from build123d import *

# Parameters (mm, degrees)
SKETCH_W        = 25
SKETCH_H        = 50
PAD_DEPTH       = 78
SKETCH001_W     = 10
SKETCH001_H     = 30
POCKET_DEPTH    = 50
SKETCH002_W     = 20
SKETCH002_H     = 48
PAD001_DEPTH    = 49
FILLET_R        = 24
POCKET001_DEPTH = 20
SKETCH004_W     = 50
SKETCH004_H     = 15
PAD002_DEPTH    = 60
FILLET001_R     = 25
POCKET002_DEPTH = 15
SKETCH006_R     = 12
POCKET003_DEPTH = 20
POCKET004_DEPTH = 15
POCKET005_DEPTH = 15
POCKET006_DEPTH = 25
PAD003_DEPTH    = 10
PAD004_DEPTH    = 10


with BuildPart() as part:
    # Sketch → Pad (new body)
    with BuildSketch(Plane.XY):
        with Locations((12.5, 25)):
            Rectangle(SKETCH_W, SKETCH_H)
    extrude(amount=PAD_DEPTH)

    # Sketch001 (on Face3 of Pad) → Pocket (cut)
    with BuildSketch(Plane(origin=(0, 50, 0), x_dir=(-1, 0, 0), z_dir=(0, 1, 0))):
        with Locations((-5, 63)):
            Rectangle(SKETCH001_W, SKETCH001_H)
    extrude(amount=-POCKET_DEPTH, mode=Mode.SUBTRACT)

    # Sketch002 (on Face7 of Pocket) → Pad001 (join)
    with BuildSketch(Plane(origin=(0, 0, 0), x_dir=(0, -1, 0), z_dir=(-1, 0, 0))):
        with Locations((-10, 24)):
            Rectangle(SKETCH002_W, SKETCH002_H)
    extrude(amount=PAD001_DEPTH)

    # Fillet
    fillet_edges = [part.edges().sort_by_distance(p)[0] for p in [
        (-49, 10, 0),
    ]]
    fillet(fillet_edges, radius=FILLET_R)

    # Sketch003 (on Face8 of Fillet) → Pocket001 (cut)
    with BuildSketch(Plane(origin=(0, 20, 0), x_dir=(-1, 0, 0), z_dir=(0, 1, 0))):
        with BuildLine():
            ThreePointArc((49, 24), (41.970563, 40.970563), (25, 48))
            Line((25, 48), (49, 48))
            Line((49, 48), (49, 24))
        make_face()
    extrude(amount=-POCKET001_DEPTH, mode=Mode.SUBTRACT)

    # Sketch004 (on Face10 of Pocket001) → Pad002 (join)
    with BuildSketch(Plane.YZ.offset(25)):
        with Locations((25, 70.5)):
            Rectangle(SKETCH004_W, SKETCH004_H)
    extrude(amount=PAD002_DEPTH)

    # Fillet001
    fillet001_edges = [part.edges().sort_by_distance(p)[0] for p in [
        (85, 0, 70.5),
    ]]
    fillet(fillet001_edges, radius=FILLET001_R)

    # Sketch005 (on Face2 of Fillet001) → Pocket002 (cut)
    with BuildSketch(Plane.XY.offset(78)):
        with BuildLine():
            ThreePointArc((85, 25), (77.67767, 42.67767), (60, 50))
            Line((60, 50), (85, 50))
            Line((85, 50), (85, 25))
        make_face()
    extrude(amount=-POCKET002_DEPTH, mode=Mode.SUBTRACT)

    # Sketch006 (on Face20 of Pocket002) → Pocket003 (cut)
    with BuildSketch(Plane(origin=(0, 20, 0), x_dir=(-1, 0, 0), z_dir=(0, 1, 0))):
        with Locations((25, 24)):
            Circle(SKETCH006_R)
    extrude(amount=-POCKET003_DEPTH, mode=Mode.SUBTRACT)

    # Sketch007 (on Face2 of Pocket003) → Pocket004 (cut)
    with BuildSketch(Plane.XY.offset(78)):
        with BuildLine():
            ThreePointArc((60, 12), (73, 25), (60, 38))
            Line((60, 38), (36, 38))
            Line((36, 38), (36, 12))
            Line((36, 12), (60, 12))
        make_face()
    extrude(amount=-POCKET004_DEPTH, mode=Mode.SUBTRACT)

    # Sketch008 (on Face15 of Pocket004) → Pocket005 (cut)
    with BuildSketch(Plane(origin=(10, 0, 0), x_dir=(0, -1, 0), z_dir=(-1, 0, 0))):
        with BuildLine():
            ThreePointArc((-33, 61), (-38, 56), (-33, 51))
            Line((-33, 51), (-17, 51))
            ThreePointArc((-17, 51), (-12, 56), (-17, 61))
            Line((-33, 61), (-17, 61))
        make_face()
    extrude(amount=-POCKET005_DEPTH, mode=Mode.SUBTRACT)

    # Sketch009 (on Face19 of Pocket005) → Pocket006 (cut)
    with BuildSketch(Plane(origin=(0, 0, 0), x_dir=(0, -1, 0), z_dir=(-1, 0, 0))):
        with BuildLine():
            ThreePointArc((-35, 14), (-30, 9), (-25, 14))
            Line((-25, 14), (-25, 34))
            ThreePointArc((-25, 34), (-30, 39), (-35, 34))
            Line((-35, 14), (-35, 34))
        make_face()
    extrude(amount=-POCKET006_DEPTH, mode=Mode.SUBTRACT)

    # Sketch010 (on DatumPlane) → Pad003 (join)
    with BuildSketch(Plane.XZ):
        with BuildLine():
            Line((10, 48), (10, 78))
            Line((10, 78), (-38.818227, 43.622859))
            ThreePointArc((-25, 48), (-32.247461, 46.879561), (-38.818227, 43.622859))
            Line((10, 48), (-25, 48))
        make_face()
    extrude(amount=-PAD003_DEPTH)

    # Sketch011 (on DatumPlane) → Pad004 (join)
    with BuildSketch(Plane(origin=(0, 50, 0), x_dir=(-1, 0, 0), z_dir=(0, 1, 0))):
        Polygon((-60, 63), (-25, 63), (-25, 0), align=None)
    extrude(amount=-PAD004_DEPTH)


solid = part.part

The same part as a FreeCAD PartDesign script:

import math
import FreeCAD as App
import Part
import Sketcher
from FreeCAD import Vector


def edges_at(feature, points):
    """Names of the edges that pass closest to the given points."""
    edges = feature.Shape.Edges
    near = lambda p: min(range(len(edges)), key=lambda i: edges[i].distToShape(Part.Vertex(*p))[0])
    return sorted({f"Edge{near(p) + 1}" for p in points})

doc = App.newDocument("Part")
body = doc.addObject("PartDesign::Body", "Body")

sketch1 = body.newObject("Sketcher::SketchObject", "Sketch")
sketch1.AttachmentSupport = (doc.getObject("XY_Plane"), [""])
sketch1.MapMode = "FlatFace"
sketch1.addGeometry([
    Part.LineSegment(Vector(0, 50, 0), Vector(0, 0, 0)),
    Part.LineSegment(Vector(0, 0, 0), Vector(25, 0, 0)),
    Part.LineSegment(Vector(25, 0, 0), Vector(25, 50, 0)),
    Part.LineSegment(Vector(25, 50, 0), Vector(0, 50, 0)),
], False)
sketch1.addConstraint([
    Sketcher.Constraint("Coincident", 0, 2, 1, 1),
    Sketcher.Constraint("Coincident", 1, 2, 2, 1),
    Sketcher.Constraint("Coincident", 2, 2, 3, 1),
    Sketcher.Constraint("Coincident", 3, 2, 0, 1),
    Sketcher.Constraint("Vertical", 0),
    Sketcher.Constraint("Horizontal", 1),
    Sketcher.Constraint("Vertical", 2),
    Sketcher.Constraint("Horizontal", 3),
    Sketcher.Constraint("Coincident", 0, 2, -1, 1),
    Sketcher.Constraint("DistanceX", 1, 1, 1, 2, 25.0),
    Sketcher.Constraint("DistanceY", 0, 2, 0, 1, 50.0),
])
pad1 = body.newObject("PartDesign::Pad", "Pad")
pad1.Profile = sketch1
pad1.Length = 78

sketch2 = body.newObject("Sketcher::SketchObject", "Sketch001")
sketch2.AttachmentSupport = (doc.getObject("XZ_Plane"), [""])
sketch2.MapMode = "FlatFace"
sketch2.AttachmentOffset = App.Placement(Vector(0, 0, -50), App.Rotation())
sketch2.addGeometry([
    Part.LineSegment(Vector(10, 78, 0), Vector(10, 48, 0)),
    Part.LineSegment(Vector(10, 48, 0), Vector(0, 48, 0)),
    Part.LineSegment(Vector(0, 48, 0), Vector(0, 78, 0)),
    Part.LineSegment(Vector(0, 78, 0), Vector(10, 78, 0)),
], False)
sketch2.addConstraint([
    Sketcher.Constraint("Coincident", 0, 2, 1, 1),
    Sketcher.Constraint("Coincident", 1, 2, 2, 1),
    Sketcher.Constraint("Coincident", 2, 2, 3, 1),
    Sketcher.Constraint("Coincident", 3, 2, 0, 1),
    Sketcher.Constraint("Vertical", 0),
    Sketcher.Constraint("Horizontal", 1),
    Sketcher.Constraint("Vertical", 2),
    Sketcher.Constraint("Horizontal", 3),
    Sketcher.Constraint("PointOnObject", 1, 2, -2),
    Sketcher.Constraint("DistanceX", 1, 2, 1, 1, 10.0),
    Sketcher.Constraint("DistanceY", 0, 2, 0, 1, 30.0),
    Sketcher.Constraint("DistanceY", -1, 1, 0, 2, 48.0),
])
pocket1 = body.newObject("PartDesign::Pocket", "Pocket")
pocket1.Profile = sketch2
pocket1.Length = 50
pocket1.Reversed = True

sketch3 = body.newObject("Sketcher::SketchObject", "Sketch002")
sketch3.AttachmentSupport = (doc.getObject("YZ_Plane"), [""])
sketch3.MapMode = "FlatFace"
sketch3.addGeometry([
    Part.LineSegment(Vector(20, 48, 0), Vector(20, 0, 0)),
    Part.LineSegment(Vector(20, 0, 0), Vector(0, 0, 0)),
    Part.LineSegment(Vector(0, 0, 0), Vector(0, 48, 0)),
    Part.LineSegment(Vector(0, 48, 0), Vector(20, 48, 0)),
], False)
sketch3.addConstraint([
    Sketcher.Constraint("Coincident", 0, 2, 1, 1),
    Sketcher.Constraint("Coincident", 1, 2, 2, 1),
    Sketcher.Constraint("Coincident", 2, 2, 3, 1),
    Sketcher.Constraint("Coincident", 3, 2, 0, 1),
    Sketcher.Constraint("Vertical", 0),
    Sketcher.Constraint("Horizontal", 1),
    Sketcher.Constraint("Vertical", 2),
    Sketcher.Constraint("Horizontal", 3),
    Sketcher.Constraint("Coincident", 1, 2, -1, 1),
    Sketcher.Constraint("DistanceX", 1, 2, 1, 1, 20.0),
    Sketcher.Constraint("DistanceY", 0, 2, 0, 1, 48.0),
])
pad2 = body.newObject("PartDesign::Pad", "Pad001")
pad2.Profile = sketch3
pad2.Length = 49
pad2.Reversed = True
doc.recompute()

fillet = body.newObject("PartDesign::Fillet", "Fillet")
fillet.Base = (pad2, edges_at(pad2, [(-49, 10, 0)]))
fillet.Radius = 24

sketch4 = body.newObject("Sketcher::SketchObject", "Sketch003")
sketch4.AttachmentSupport = (doc.getObject("XZ_Plane"), [""])
sketch4.MapMode = "FlatFace"
sketch4.AttachmentOffset = App.Placement(Vector(0, 0, -20), App.Rotation())
sketch4.addGeometry([
    Part.ArcOfCircle(Part.Circle(Vector(-25, 24, 0), Vector(0, 0, 1), 24), math.radians(90), math.radians(180)),
    Part.LineSegment(Vector(-49, 24, 0), Vector(-49, 48, 0)),
    Part.LineSegment(Vector(-49, 48, 0), Vector(-25, 48, 0)),
], False)
sketch4.addConstraint([
    Sketcher.Constraint("Tangent", 0, 2, 1, 1),
    Sketcher.Constraint("Coincident", 1, 2, 2, 1),
    Sketcher.Constraint("Tangent", 2, 2, 0, 1),
    Sketcher.Constraint("Vertical", 1),
    Sketcher.Constraint("Horizontal", 2),
    Sketcher.Constraint("Radius", 0, 23.999999),
    Sketcher.Constraint("DistanceX", 0, 3, -1, 1, 25.000001),
    Sketcher.Constraint("DistanceY", -1, 1, 0, 3, 24.000001),
])
pocket2 = body.newObject("PartDesign::Pocket", "Pocket001")
pocket2.Profile = sketch4
pocket2.Length = 20
pocket2.Reversed = True

sketch5 = body.newObject("Sketcher::SketchObject", "Sketch004")
sketch5.AttachmentSupport = (doc.getObject("YZ_Plane"), [""])
sketch5.MapMode = "FlatFace"
sketch5.AttachmentOffset = App.Placement(Vector(0, 0, 25), App.Rotation())
sketch5.addGeometry([
    Part.LineSegment(Vector(0, 78, 0), Vector(0, 63, 0)),
    Part.LineSegment(Vector(0, 63, 0), Vector(50, 63, 0)),
    Part.LineSegment(Vector(50, 63, 0), Vector(50, 78, 0)),
    Part.LineSegment(Vector(50, 78, 0), Vector(0, 78, 0)),
], False)
sketch5.addConstraint([
    Sketcher.Constraint("Coincident", 0, 2, 1, 1),
    Sketcher.Constraint("Coincident", 1, 2, 2, 1),
    Sketcher.Constraint("Coincident", 2, 2, 3, 1),
    Sketcher.Constraint("Coincident", 3, 2, 0, 1),
    Sketcher.Constraint("Vertical", 0),
    Sketcher.Constraint("Horizontal", 1),
    Sketcher.Constraint("Vertical", 2),
    Sketcher.Constraint("Horizontal", 3),
    Sketcher.Constraint("PointOnObject", 0, 2, -2),
    Sketcher.Constraint("DistanceX", 1, 1, 1, 2, 50.0),
    Sketcher.Constraint("DistanceY", 0, 2, 0, 1, 15.0),
    Sketcher.Constraint("DistanceY", -1, 1, 0, 2, 63.0),
])
pad3 = body.newObject("PartDesign::Pad", "Pad002")
pad3.Profile = sketch5
pad3.Length = 60
doc.recompute()

fillet2 = body.newObject("PartDesign::Fillet", "Fillet001")
fillet2.Base = (pad3, edges_at(pad3, [(85, 0, 70.5)]))
fillet2.Radius = 25

sketch6 = body.newObject("Sketcher::SketchObject", "Sketch005")
sketch6.AttachmentSupport = (doc.getObject("XY_Plane"), [""])
sketch6.MapMode = "FlatFace"
sketch6.AttachmentOffset = App.Placement(Vector(0, 0, 78), App.Rotation())
sketch6.addGeometry([
    Part.ArcOfCircle(Part.Circle(Vector(60, 25, 0), Vector(0, 0, 1), 25), math.radians(0), math.radians(90)),
    Part.LineSegment(Vector(85, 25, 0), Vector(85, 50, 0)),
    Part.LineSegment(Vector(85, 50, 0), Vector(60, 50, 0)),
], False)
sketch6.addConstraint([
    Sketcher.Constraint("Tangent", 0, 1, 1, 1),
    Sketcher.Constraint("Coincident", 1, 2, 2, 1),
    Sketcher.Constraint("Tangent", 2, 2, 0, 2),
    Sketcher.Constraint("Vertical", 1),
    Sketcher.Constraint("Horizontal", 2),
    Sketcher.Constraint("Radius", 0, 24.999998),
    Sketcher.Constraint("DistanceX", -1, 1, 0, 3, 60.000002),
    Sketcher.Constraint("DistanceY", -1, 1, 0, 3, 25.000002),
])
pocket3 = body.newObject("PartDesign::Pocket", "Pocket002")
pocket3.Profile = sketch6
pocket3.Length = 15

sketch7 = body.newObject("Sketcher::SketchObject", "Sketch006")
sketch7.AttachmentSupport = (doc.getObject("XZ_Plane"), [""])
sketch7.MapMode = "FlatFace"
sketch7.AttachmentOffset = App.Placement(Vector(0, 0, -20), App.Rotation())
sketch7.addGeometry(Part.Circle(Vector(-25, 24, 0), Vector(0, 0, 1), 12), False)
sketch7.addConstraint([
    Sketcher.Constraint("Diameter", 0, 24.0),
    Sketcher.Constraint("DistanceX", 0, 3, -1, 1, 25.0),
    Sketcher.Constraint("DistanceY", -1, 1, 0, 3, 24.0),
])
pocket4 = body.newObject("PartDesign::Pocket", "Pocket003")
pocket4.Profile = sketch7
pocket4.Length = 20
pocket4.Reversed = True

sketch8 = body.newObject("Sketcher::SketchObject", "Sketch007")
sketch8.AttachmentSupport = (doc.getObject("XY_Plane"), [""])
sketch8.MapMode = "FlatFace"
sketch8.AttachmentOffset = App.Placement(Vector(0, 0, 78), App.Rotation())
sketch8.addGeometry([
    Part.ArcOfCircle(Part.Circle(Vector(60, 25, 0), Vector(0, 0, 1), 13), math.radians(-90), math.radians(90)),
    Part.LineSegment(Vector(60, 38, 0), Vector(36, 38, 0)),
    Part.LineSegment(Vector(36, 38, 0), Vector(36, 12, 0)),
    Part.LineSegment(Vector(36, 12, 0), Vector(60, 12, 0)),
], False)
sketch8.addConstraint([
    Sketcher.Constraint("Tangent", 0, 2, 1, 1),
    Sketcher.Constraint("Coincident", 1, 2, 2, 1),
    Sketcher.Constraint("Coincident", 2, 2, 3, 1),
    Sketcher.Constraint("Tangent", 3, 2, 0, 1),
    Sketcher.Constraint("Horizontal", 1),
    Sketcher.Constraint("Vertical", 2),
    Sketcher.Constraint("Horizontal", 3),
    Sketcher.Constraint("Radius", 0, 13.0),
    Sketcher.Constraint("DistanceX", 1, 2, 1, 1, 24.0),
    Sketcher.Constraint("DistanceX", -1, 1, 0, 3, 60.0),
    Sketcher.Constraint("DistanceY", -1, 1, 0, 3, 25.0),
])
pocket5 = body.newObject("PartDesign::Pocket", "Pocket004")
pocket5.Profile = sketch8
pocket5.Length = 15

sketch9 = body.newObject("Sketcher::SketchObject", "Sketch008")
sketch9.AttachmentSupport = (doc.getObject("YZ_Plane"), [""])
sketch9.MapMode = "FlatFace"
sketch9.AttachmentOffset = App.Placement(Vector(0, 0, 10), App.Rotation())
sketch9.addGeometry([
    Part.ArcOfCircle(Part.Circle(Vector(33, 56, 0), Vector(0, 0, 1), 5), math.radians(-90), math.radians(90)),
    Part.LineSegment(Vector(33, 51, 0), Vector(17, 51, 0)),
    Part.ArcOfCircle(Part.Circle(Vector(17, 56, 0), Vector(0, 0, 1), 5), math.radians(90), math.radians(270)),
    Part.LineSegment(Vector(17, 61, 0), Vector(33, 61, 0)),
], False)
sketch9.addConstraint([
    Sketcher.Constraint("Tangent", 0, 1, 1, 1),
    Sketcher.Constraint("Tangent", 1, 2, 2, 2),
    Sketcher.Constraint("Tangent", 2, 1, 3, 1),
    Sketcher.Constraint("Tangent", 3, 2, 0, 2),
    Sketcher.Constraint("Horizontal", 1),
    Sketcher.Constraint("Horizontal", 3),
    Sketcher.Constraint("Radius", 0, 5.0),
    Sketcher.Constraint("DistanceX", 1, 2, 1, 1, 16.0),
    Sketcher.Constraint("DistanceX", -1, 1, 0, 3, 33.0),
    Sketcher.Constraint("DistanceY", -1, 1, 0, 3, 56.0),
])
pocket6 = body.newObject("PartDesign::Pocket", "Pocket005")
pocket6.Profile = sketch9
pocket6.Length = 15
pocket6.Reversed = True

sketch10 = body.newObject("Sketcher::SketchObject", "Sketch009")
sketch10.AttachmentSupport = (doc.getObject("YZ_Plane"), [""])
sketch10.MapMode = "FlatFace"
sketch10.addGeometry([
    Part.ArcOfCircle(Part.Circle(Vector(30, 14, 0), Vector(0, 0, 1), 5), math.radians(180), math.radians(360)),
    Part.LineSegment(Vector(25, 14, 0), Vector(25, 34, 0)),
    Part.ArcOfCircle(Part.Circle(Vector(30, 34, 0), Vector(0, 0, 1), 5), math.radians(0), math.radians(180)),
    Part.LineSegment(Vector(35, 34, 0), Vector(35, 14, 0)),
], False)
sketch10.addConstraint([
    Sketcher.Constraint("Tangent", 0, 1, 1, 1),
    Sketcher.Constraint("Tangent", 1, 2, 2, 2),
    Sketcher.Constraint("Tangent", 2, 1, 3, 1),
    Sketcher.Constraint("Tangent", 3, 2, 0, 2),
    Sketcher.Constraint("Vertical", 1),
    Sketcher.Constraint("Vertical", 3),
    Sketcher.Constraint("Radius", 0, 5.0),
    Sketcher.Constraint("DistanceY", 1, 1, 1, 2, 20.0),
    Sketcher.Constraint("DistanceX", -1, 1, 0, 3, 30.0),
    Sketcher.Constraint("DistanceY", -1, 1, 0, 3, 14.0),
])
pocket7 = body.newObject("PartDesign::Pocket", "Pocket006")
pocket7.Profile = sketch10
pocket7.Length = 25
pocket7.Reversed = True

sketch11 = body.newObject("Sketcher::SketchObject", "Sketch010")
sketch11.AttachmentSupport = (doc.getObject("XZ_Plane"), [""])
sketch11.MapMode = "FlatFace"
sketch11.addGeometry([
    Part.LineSegment(Vector(10, 48, 0), Vector(10, 78, 0)),
    Part.LineSegment(Vector(10, 78, 0), Vector(-39, 44, 0)),
    Part.ArcOfCircle(Part.Circle(Vector(-25, 24, 0), Vector(0, 0, 1), 24), math.radians(90), math.radians(125)),
    Part.LineSegment(Vector(-25, 48, 0), Vector(10, 48, 0)),
], False)
sketch11.addConstraint([
    Sketcher.Constraint("Coincident", 0, 2, 1, 1),
    Sketcher.Constraint("Coincident", 1, 2, 2, 2),
    Sketcher.Constraint("Tangent", 2, 1, 3, 1),
    Sketcher.Constraint("Coincident", 3, 2, 0, 1),
    Sketcher.Constraint("Vertical", 0),
    Sketcher.Constraint("Horizontal", 3),
    Sketcher.Constraint("DistanceX", 3, 1, 3, 2, 35.0),
    Sketcher.Constraint("DistanceY", 0, 1, 0, 2, 30.0),
    Sketcher.Constraint("DistanceX", 2, 3, -1, 1, 25.000001),
    Sketcher.Constraint("DistanceY", -1, 1, 0, 2, 78.0),
    Sketcher.Constraint("Radius", 2, 23.999997),
    Sketcher.Constraint("Distance", 1, 59.707681),
])
pad4 = body.newObject("PartDesign::Pad", "Pad003")
pad4.Profile = sketch11
pad4.Length = 10
pad4.Reversed = True

sketch12 = body.newObject("Sketcher::SketchObject", "Sketch011")
sketch12.AttachmentSupport = (doc.getObject("XZ_Plane"), [""])
sketch12.MapMode = "FlatFace"
sketch12.AttachmentOffset = App.Placement(Vector(0, 0, -50), App.Rotation())
sketch12.addGeometry([
    Part.LineSegment(Vector(25, 63, 0), Vector(60, 63, 0)),
    Part.LineSegment(Vector(60, 63, 0), Vector(25, 0, 0)),
    Part.LineSegment(Vector(25, 0, 0), Vector(25, 63, 0)),
], False)
sketch12.addConstraint([
    Sketcher.Constraint("Coincident", 0, 2, 1, 1),
    Sketcher.Constraint("Coincident", 1, 2, 2, 1),
    Sketcher.Constraint("Coincident", 2, 2, 0, 1),
    Sketcher.Constraint("Horizontal", 0),
    Sketcher.Constraint("Vertical", 2),
    Sketcher.Constraint("PointOnObject", 1, 2, -1),
    Sketcher.Constraint("DistanceX", 0, 1, 0, 2, 35.0),
    Sketcher.Constraint("DistanceY", 2, 1, 2, 2, 63.0),
    Sketcher.Constraint("DistanceX", -1, 1, 0, 2, 60.0),
])
pad5 = body.newObject("PartDesign::Pad", "Pad004")
pad5.Profile = sketch12
pad5.Length = 10

doc.recompute()
